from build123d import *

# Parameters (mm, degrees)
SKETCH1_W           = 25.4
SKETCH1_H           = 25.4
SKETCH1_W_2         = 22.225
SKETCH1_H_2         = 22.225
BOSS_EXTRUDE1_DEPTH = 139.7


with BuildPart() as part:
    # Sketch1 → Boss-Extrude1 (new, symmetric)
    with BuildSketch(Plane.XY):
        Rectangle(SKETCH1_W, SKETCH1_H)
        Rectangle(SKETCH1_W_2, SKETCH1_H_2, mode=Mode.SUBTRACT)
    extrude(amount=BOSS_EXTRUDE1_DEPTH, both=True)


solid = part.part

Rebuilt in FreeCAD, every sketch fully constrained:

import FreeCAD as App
import Part
import Sketcher
Q = App.Units.Quantity

doc = App.newDocument("Part")
params = doc.addObject("Spreadsheet::Sheet", "Params")
for row, (alias, value) in enumerate([
    ("sketch1_width", "1 in"),
    ("sketch1_width2", "0.875 in"),
    ("pad1_length", "11 in"),
], start=1):
    params.set(f"A{row}", alias)
    params.set(f"B{row}", "=" + value)
    params.setAlias(f"B{row}", alias)

body = doc.addObject("PartDesign::Body", "Body")

sketch1 = doc.addObject("Sketcher::SketchObject", "Sketch")
body.addObject(sketch1)
sketch1.AttachmentSupport = (doc.XY_Plane, [""])
sketch1.MapMode = "FlatFace"
sketch1.addGeometry([
    Part.LineSegment(App.Vector(-12.7, 12.7, 0), App.Vector(-12.7, -12.7, 0)),
    Part.LineSegment(App.Vector(-12.7, -12.7, 0), App.Vector(12.7, -12.7, 0)),
    Part.LineSegment(App.Vector(12.7, -12.7, 0), App.Vector(12.7, 12.7, 0)),
    Part.LineSegment(App.Vector(12.7, 12.7, 0), App.Vector(-12.7, 12.7, 0)),
    Part.LineSegment(App.Vector(11.1125, -11.1125, 0), App.Vector(-11.1125, -11.1125, 0)),
    Part.LineSegment(App.Vector(-11.1125, -11.1125, 0), App.Vector(-11.1125, 11.1125, 0)),
    Part.LineSegment(App.Vector(-11.1125, 11.1125, 0), App.Vector(11.1125, 11.1125, 0)),
    Part.LineSegment(App.Vector(11.1125, 11.1125, 0), App.Vector(11.1125, -11.1125, 0)),
], False)
sketch1.addConstraint([
    Sketcher.Constraint("Coincident", 0, 2, 1, 1),
    Sketcher.Constraint("Coincident", 1, 2, 2, 1),
    Sketcher.Constraint("Coincident", 2, 2, 3, 1),
    Sketcher.Constraint("Coincident", 3, 2, 0, 1),
    Sketcher.Constraint("Coincident", 4, 2, 5, 1),
    Sketcher.Constraint("Coincident", 5, 2, 6, 1),
    Sketcher.Constraint("Coincident", 6, 2, 7, 1),
    Sketcher.Constraint("Coincident", 7, 2, 4, 1),
    Sketcher.Constraint("Vertical", 0),
    Sketcher.Constraint("Horizontal", 1),
    Sketcher.Constraint("Vertical", 2),
    Sketcher.Constraint("Horizontal", 3),
    Sketcher.Constraint("Horizontal", 4),
    Sketcher.Constraint("Vertical", 5),
    Sketcher.Constraint("Horizontal", 6),
    Sketcher.Constraint("Vertical", 7),
    Sketcher.Constraint("Symmetric", 0, 2, 2, 2, -1, 1),
    Sketcher.Constraint("Symmetric", 4, 2, 6, 2, -1, 1),
    Sketcher.Constraint("Equal", 3, 0),
    Sketcher.Constraint("Equal", 6, 5),
    Sketcher.Constraint("DistanceX", 1, 1, 1, 2, Q("1 in")),
    Sketcher.Constraint("DistanceX", 4, 2, 4, 1, Q("0.875 in")),
])
sketch1.setExpression("Constraints[20]", "Params.sketch1_width")
sketch1.setExpression("Constraints[21]", "Params.sketch1_width2")
pad1 = doc.addObject("PartDesign::Pad", "Pad")
body.addObject(pad1)
pad1.Profile = sketch1
pad1.setExpression("Length", "Params.pad1_length")
pad1.Midplane = True

doc.recompute()
